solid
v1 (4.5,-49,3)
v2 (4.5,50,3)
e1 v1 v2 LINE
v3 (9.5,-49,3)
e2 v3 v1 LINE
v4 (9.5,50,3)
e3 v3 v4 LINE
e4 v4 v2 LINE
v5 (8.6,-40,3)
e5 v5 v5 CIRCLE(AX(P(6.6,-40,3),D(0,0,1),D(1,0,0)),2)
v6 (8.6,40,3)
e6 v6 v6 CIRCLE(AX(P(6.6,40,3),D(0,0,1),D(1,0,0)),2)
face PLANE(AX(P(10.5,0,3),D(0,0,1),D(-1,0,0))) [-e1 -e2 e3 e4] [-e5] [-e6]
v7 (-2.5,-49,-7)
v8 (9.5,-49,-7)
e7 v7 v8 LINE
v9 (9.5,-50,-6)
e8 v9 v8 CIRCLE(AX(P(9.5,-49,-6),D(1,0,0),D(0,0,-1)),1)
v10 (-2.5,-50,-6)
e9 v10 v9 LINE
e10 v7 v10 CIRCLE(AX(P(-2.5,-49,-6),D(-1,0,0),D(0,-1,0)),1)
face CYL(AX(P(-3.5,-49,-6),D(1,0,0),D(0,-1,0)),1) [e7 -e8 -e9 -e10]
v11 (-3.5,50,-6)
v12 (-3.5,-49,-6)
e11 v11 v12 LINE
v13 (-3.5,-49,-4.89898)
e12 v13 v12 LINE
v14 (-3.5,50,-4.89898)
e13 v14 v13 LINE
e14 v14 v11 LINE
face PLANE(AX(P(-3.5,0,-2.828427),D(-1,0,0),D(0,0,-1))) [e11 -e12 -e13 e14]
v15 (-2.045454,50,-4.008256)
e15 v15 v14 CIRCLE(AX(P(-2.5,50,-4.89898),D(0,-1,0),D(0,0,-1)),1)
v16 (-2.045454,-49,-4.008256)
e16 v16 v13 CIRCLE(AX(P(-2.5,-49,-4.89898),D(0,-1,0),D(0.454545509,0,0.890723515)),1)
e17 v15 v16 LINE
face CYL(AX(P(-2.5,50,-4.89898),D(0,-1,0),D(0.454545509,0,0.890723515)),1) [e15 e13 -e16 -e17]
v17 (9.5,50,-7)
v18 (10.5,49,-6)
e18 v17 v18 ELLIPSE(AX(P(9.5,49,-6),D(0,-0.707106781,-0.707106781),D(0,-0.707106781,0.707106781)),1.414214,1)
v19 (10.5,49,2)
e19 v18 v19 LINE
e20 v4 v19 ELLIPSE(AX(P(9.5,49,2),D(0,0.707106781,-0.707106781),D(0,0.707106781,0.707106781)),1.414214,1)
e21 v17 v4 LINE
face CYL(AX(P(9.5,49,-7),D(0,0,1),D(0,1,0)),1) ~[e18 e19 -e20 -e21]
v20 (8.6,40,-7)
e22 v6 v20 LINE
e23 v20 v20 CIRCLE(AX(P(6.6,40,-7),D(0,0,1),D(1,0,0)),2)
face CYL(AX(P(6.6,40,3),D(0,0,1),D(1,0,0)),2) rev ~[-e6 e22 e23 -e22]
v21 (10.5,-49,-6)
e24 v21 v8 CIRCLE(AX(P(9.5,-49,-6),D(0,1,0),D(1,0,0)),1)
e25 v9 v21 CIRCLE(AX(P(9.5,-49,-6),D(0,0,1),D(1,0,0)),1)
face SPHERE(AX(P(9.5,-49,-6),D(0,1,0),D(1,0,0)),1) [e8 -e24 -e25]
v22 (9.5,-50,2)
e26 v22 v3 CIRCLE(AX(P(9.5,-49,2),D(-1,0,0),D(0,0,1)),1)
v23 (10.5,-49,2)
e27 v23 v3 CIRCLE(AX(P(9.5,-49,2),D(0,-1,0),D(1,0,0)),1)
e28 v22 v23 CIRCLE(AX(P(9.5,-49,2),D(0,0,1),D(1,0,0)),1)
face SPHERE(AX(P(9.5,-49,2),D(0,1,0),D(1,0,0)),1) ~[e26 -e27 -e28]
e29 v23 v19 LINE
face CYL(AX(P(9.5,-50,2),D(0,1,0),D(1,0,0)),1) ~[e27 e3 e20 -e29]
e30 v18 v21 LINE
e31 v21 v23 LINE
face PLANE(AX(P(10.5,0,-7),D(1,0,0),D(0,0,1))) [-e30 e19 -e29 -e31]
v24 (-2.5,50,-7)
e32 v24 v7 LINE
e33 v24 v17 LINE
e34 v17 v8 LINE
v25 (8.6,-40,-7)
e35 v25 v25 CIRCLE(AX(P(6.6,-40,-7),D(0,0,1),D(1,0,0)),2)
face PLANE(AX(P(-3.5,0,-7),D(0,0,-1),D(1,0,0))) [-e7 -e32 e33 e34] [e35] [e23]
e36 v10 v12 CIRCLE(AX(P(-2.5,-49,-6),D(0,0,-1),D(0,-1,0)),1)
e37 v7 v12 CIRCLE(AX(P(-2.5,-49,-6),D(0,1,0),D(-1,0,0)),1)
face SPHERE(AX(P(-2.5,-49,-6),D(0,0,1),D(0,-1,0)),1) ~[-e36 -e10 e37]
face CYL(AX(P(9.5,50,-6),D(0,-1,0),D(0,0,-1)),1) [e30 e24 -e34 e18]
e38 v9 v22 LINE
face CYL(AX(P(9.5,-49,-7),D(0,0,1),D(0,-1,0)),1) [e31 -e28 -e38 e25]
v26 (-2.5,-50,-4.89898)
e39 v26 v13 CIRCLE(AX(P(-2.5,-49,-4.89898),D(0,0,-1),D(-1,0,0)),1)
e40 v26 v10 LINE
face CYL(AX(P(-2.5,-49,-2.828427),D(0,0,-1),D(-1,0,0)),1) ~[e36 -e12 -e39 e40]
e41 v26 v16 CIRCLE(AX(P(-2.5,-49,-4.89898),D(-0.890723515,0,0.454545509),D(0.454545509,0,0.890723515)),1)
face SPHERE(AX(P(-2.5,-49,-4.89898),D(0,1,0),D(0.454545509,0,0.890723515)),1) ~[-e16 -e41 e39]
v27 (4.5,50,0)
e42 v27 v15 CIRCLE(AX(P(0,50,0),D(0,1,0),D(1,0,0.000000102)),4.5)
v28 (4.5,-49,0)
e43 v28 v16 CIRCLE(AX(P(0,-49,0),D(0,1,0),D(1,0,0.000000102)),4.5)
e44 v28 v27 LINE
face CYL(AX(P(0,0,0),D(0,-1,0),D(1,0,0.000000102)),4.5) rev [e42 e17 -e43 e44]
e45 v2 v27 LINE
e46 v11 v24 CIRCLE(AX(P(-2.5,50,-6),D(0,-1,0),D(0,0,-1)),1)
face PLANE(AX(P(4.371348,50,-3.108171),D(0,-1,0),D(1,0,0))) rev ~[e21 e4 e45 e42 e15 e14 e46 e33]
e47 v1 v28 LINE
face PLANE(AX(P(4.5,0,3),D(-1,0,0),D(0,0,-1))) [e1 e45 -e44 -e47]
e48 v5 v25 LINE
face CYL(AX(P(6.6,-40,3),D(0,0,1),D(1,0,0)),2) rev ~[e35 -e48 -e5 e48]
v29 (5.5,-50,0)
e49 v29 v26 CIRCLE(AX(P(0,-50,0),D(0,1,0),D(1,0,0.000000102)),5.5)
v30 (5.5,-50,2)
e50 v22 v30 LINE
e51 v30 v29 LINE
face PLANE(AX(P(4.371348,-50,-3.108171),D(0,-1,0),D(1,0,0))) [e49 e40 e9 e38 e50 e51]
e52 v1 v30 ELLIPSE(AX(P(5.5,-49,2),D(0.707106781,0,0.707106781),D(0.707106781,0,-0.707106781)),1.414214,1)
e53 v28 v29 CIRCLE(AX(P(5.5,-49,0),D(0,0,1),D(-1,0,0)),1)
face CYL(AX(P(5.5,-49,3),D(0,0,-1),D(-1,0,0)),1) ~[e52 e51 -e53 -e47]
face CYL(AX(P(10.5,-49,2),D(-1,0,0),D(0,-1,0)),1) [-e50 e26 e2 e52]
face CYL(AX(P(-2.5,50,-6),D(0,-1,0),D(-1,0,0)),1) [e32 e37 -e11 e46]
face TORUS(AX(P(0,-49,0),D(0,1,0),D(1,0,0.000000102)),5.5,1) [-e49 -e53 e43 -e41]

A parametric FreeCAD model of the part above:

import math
import FreeCAD as App
import Part
import Sketcher
from FreeCAD import Vector


def edges_at(feature, points):
    """Names of the edges that pass closest to the given points."""
    edges = feature.Shape.Edges
    near = lambda p: min(range(len(edges)), key=lambda i: edges[i].distToShape(Part.Vertex(*p))[0])
    return sorted({f"Edge{near(p) + 1}" for p in points})

doc = App.newDocument("Part")
body = doc.addObject("PartDesign::Body", "Body")

# Sketch on XZ plane
sketch1 = doc.addObject("Sketcher::SketchObject", "Sketch")
body.addObject(sketch1)
sketch1.AttachmentSupport = (doc.XZ_Plane, [""])
sketch1.MapMode = "FlatFace"
sketch1.addGeometry(Part.ArcOfCircle(Part.Circle(Vector(0, 0, 0), Vector(0, 0, 1), 4.5), math.radians(-141), math.radians(0)), False)
sketch1.addGeometry(Part.LineSegment(Vector(-3.5, -2.8, 0), Vector(-3.5, -7, 0)), False)
sketch1.addGeometry(Part.LineSegment(Vector(-3.5, -7, 0), Vector(10.5, -7, 0)), False)
sketch1.addGeometry(Part.LineSegment(Vector(10.5, -7, 0), Vector(10.5, 3, 0)), False)
sketch1.addGeometry(Part.LineSegment(Vector(10.5, 3, 0), Vector(4.5, 3, 0)), False)
sketch1.addGeometry(Part.LineSegment(Vector(4.5, 3, 0), Vector(4.5, 0, 0)), False)
sketch1.addConstraint(Sketcher.Constraint("Coincident", 0, 1, 1, 1))
sketch1.addConstraint(Sketcher.Constraint("Coincident", 1, 2, 2, 1))
sketch1.addConstraint(Sketcher.Constraint("Coincident", 2, 2, 3, 1))
sketch1.addConstraint(Sketcher.Constraint("Coincident", 3, 2, 4, 1))
sketch1.addConstraint(Sketcher.Constraint("Coincident", 4, 2, 5, 1))
sketch1.addConstraint(Sketcher.Constraint("Tangent", 5, 2, 0, 2))
sketch1.addConstraint(Sketcher.Constraint("Vertical", 1))
sketch1.addConstraint(Sketcher.Constraint("Horizontal", 2))
sketch1.addConstraint(Sketcher.Constraint("Vertical", 3))
sketch1.addConstraint(Sketcher.Constraint("Horizontal", 4))
sketch1.addConstraint(Sketcher.Constraint("Vertical", 5))
sketch1.addConstraint(Sketcher.Constraint("Coincident", 0, 3, -1, 1))
sketch1.addConstraint(Sketcher.Constraint("Radius", 0, 4.5))
sketch1.addConstraint(Sketcher.Constraint("DistanceX", 2, 1, 2, 2, 14.0))
sketch1.addConstraint(Sketcher.Constraint("DistanceX", 4, 2, 4, 1, 6.0))
sketch1.addConstraint(Sketcher.Constraint("DistanceY", 3, 1, 3, 2, 10.0))
sketch1.addConstraint(Sketcher.Constraint("DistanceY", 5, 2, 5, 1, 3.0))
pad1 = doc.addObject("PartDesign::Pad", "Pad")
body.addObject(pad1)
pad1.Profile = sketch1
pad1.Length = 100
pad1.Midplane = True

# Sketch on XY plane
sketch2 = doc.addObject("Sketcher::SketchObject", "Sketch001")
body.addObject(sketch2)
sketch2.AttachmentSupport = (doc.XY_Plane, [""])
sketch2.MapMode = "FlatFace"
sketch2.AttachmentOffset = App.Placement(Vector(0, 0, 3), App.Rotation())
sketch2.addGeometry(Part.Circle(Vector(6.6, -40, 0), Vector(0, 0, 1), 2), False)
sketch2.addGeometry(Part.Circle(Vector(6.6, 40, 0), Vector(0, 0, 1), 2), False)
sketch2.addConstraint(Sketcher.Constraint("Equal", 0, 1))
sketch2.addConstraint(Sketcher.Constraint("Symmetric", 0, 3, 1, 3, -1))
sketch2.addConstraint(Sketcher.Constraint("Diameter", 0, 4.0))
sketch2.addConstraint(Sketcher.Constraint("DistanceY", 0, 3, -1, 1, 40.0))
sketch2.addConstraint(Sketcher.Constraint("DistanceX", -1, 1, 0, 3, 6.6))
pocket1 = doc.addObject("PartDesign::Pocket", "Pocket")
body.addObject(pocket1)
pocket1.Profile = sketch2
pocket1.Type = "ThroughAll"
doc.recompute()

fillet = doc.addObject("PartDesign::Fillet", "Fillet")
body.addObject(fillet)
fillet.Base = (pocket1, edges_at(pocket1, [
    (10.5, 0, -7),
    (10.5, 50, -2),
    (10.5, 0, 3),
    (10.5, -50, -2),
    (1.5, -50, -4.243),
    (-3.5, -50, -4.914),
    (3.5, -50, -7),
    (7.5, -50, 3),
    (4.5, -50, 1.5),
    (-3.5, 0, -2.828),
    (-3.5, 0, -7),
]))
fillet.Radius = 1

doc.recompute()
